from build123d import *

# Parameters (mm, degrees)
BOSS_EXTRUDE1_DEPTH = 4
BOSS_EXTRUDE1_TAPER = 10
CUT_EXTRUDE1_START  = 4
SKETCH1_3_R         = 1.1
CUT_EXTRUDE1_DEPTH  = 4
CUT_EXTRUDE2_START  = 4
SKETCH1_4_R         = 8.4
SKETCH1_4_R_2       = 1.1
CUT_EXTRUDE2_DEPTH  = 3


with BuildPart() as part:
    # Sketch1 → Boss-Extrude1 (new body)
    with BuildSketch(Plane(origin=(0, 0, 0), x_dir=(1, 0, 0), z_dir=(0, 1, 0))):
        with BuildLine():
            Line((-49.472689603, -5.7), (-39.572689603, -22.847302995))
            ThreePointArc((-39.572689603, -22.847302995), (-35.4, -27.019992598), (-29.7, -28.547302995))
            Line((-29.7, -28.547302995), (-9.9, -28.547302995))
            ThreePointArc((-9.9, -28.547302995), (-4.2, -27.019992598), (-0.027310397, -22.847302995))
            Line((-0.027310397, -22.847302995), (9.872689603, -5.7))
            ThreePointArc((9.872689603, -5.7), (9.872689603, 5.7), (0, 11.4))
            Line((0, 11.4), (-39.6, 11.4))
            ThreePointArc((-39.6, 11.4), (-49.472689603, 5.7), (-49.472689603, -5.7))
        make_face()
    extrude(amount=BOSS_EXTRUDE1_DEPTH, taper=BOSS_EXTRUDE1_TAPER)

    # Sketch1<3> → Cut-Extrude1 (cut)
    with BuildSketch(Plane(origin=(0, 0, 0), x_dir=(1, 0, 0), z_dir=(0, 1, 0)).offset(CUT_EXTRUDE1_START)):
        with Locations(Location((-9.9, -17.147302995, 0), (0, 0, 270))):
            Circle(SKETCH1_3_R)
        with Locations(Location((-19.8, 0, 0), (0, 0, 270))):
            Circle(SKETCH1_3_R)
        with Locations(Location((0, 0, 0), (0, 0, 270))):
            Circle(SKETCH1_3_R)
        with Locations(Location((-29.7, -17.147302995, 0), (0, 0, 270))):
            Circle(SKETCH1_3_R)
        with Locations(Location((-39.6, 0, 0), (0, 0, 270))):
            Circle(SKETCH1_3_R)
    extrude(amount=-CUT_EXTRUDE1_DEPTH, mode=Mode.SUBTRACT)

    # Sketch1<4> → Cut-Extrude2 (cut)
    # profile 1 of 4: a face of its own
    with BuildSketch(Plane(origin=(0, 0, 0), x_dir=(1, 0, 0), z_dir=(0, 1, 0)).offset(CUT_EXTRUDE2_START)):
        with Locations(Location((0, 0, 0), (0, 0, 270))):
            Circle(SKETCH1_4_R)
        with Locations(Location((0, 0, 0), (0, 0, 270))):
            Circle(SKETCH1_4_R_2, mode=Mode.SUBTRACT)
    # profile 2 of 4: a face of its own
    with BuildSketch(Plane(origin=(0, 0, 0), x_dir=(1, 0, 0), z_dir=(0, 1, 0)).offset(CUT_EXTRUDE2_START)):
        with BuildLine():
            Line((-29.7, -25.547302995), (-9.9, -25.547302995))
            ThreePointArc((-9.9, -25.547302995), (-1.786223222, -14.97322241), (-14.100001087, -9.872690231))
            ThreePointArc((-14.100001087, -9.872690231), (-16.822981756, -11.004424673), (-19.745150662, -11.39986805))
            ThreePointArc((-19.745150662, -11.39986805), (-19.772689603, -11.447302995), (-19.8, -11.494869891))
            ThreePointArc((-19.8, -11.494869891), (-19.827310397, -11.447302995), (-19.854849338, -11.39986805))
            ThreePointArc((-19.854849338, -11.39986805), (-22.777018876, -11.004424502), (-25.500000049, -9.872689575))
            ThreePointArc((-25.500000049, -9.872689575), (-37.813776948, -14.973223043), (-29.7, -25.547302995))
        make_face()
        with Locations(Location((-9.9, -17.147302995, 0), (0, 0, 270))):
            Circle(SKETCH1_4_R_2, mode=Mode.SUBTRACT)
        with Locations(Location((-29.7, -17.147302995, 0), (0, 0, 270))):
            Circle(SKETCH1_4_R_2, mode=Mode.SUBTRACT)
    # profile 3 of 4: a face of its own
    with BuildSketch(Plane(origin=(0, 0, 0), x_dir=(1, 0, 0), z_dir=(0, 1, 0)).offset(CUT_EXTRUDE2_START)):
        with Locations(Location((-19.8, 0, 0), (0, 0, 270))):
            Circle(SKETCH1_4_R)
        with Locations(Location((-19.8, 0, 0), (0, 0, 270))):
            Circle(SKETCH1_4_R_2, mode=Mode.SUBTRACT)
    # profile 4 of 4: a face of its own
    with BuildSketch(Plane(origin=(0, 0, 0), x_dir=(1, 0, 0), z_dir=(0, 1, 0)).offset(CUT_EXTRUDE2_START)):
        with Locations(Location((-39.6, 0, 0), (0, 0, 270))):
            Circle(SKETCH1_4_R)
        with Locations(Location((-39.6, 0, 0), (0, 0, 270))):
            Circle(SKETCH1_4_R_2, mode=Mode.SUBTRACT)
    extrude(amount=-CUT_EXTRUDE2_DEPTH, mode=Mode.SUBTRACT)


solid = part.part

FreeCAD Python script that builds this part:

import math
import FreeCAD as App
import Part
import Sketcher

V = App.Vector
Q = App.Units.Quantity

doc = App.newDocument("Part")
params = doc.addObject("Spreadsheet::Sheet", "Params")
for row, (alias, value) in enumerate([
    ("sketch1_radius", "11.4 mm"),
    ("sketch1_width", "19.8 mm"),
    ("sketch1_width2", "39.6 mm"),
    ("pad1_length", "4 mm"),
    ("pad1_taper", "-10 deg"),
    ("sketch2_diameter", "2.2 mm"),
    ("pocket1_length", "4 mm"),
    ("sketch3_diameter", "16.8 mm"),
    ("sketch3_diameter2", "2.2 mm"),
    ("sketch3_radius", "11.4 mm"),
    ("sketch3_width", "19.8 mm"),
    ("pocket2_length", "3 mm"),
], start=1):
    params.set(f"A{row}", alias)
    params.set(f"B{row}", "=" + value)
    params.setAlias(f"B{row}", alias)

body = doc.addObject("PartDesign::Body", "Body")

sketch1 = body.newObject("Sketcher::SketchObject", "Sketch")
sketch1.AttachmentSupport = (doc.getObject("XZ_Plane"), [""])
sketch1.MapMode = "FlatFace"
sketch1.addGeometry([
    Part.LineSegment(V(-49, 6, 0), V(-40, 23, 0)),
    Part.ArcOfCircle(Part.Circle(V(-30, 17, 0), V(0, 0, 1), 11), math.radians(90), math.radians(150)),
    Part.LineSegment(V(-30, 29, 0), V(-10, 29, 0)),
    Part.ArcOfCircle(Part.Circle(V(-10, 17, 0), V(0, 0, 1), 11), math.radians(30), math.radians(90)),
    Part.LineSegment(V(0, 23, 0), V(10, 6, 0)),
    Part.ArcOfCircle(Part.Circle(V(0, 0, 0), V(0, 0, 1), 11), math.radians(-90), math.radians(30)),
    Part.LineSegment(V(0, -11, 0), V(-40, -11, 0)),
    Part.ArcOfCircle(Part.Circle(V(-40, 0, 0), V(0, 0, 1), 11), math.radians(150), math.radians(270)),
], False)
sketch1.addConstraint([
    Sketcher.Constraint("Tangent", 0, 2, 1, 2),
    Sketcher.Constraint("Tangent", 1, 1, 2, 1),
    Sketcher.Constraint("Tangent", 2, 2, 3, 2),
    Sketcher.Constraint("Tangent", 3, 1, 4, 1),
    Sketcher.Constraint("Tangent", 4, 2, 5, 2),
    Sketcher.Constraint("Tangent", 5, 1, 6, 1),
    Sketcher.Constraint("Tangent", 6, 2, 7, 2),
    Sketcher.Constraint("Tangent", 7, 1, 0, 1),
    Sketcher.Constraint("Horizontal", 2),
    Sketcher.Constraint("Horizontal", 6),
    Sketcher.Constraint("Coincident", 5, 3, -1, 1),
    Sketcher.Constraint("Equal", 1, 3),
    Sketcher.Constraint("Equal", 3, 5),
    Sketcher.Constraint("Equal", 5, 7),
    Sketcher.Constraint("Horizontal", 0, 2, 3, 1),
    Sketcher.Constraint("Radius", 1, 11.4),
    Sketcher.Constraint("Angle", 0, Q("60 deg")),
    Sketcher.Constraint("DistanceX", 2, 1, 2, 2, 19.8),
    Sketcher.Constraint("DistanceX", 6, 2, 6, 1, 39.6),
])
sketch1.setExpression("Constraints[15]", "Params.sketch1_radius")
sketch1.setExpression("Constraints[17]", "Params.sketch1_width")
sketch1.setExpression("Constraints[18]", "Params.sketch1_width2")
pad1 = body.newObject("PartDesign::Pad", "Pad")
pad1.Profile = sketch1
pad1.setExpression("Length", "Params.pad1_length")
pad1.Reversed = True
pad1.setExpression("TaperAngle", "Params.pad1_taper")

sketch2 = body.newObject("Sketcher::SketchObject", "Sketch001")
sketch2.AttachmentSupport = (doc.getObject("XZ_Plane"), [""])
sketch2.MapMode = "FlatFace"
sketch2.AttachmentOffset = App.Placement(V(0, 0, -4), App.Rotation())
sketch2.addGeometry([
    Part.Circle(V(-9.9, 17.1, 0), V(0, 0, 1), 1.1),
    Part.Circle(V(-19.8, 0, 0), V(0, 0, 1), 1.1),
    Part.Circle(V(0, 0, 0), V(0, 0, 1), 1.1),
    Part.Circle(V(-29.7, 17.1, 0), V(0, 0, 1), 1.1),
    Part.Circle(V(-39.6, 0, 0), V(0, 0, 1), 1.1),
], False)
sketch2.addConstraint([
    Sketcher.Constraint("Coincident", 2, 3, -1, 1),
    Sketcher.Constraint("Equal", 0, 1),
    Sketcher.Constraint("Equal", 1, 2),
    Sketcher.Constraint("Equal", 2, 3),
    Sketcher.Constraint("Equal", 3, 4),
    Sketcher.Constraint("PointOnObject", 1, 3, -1),
    Sketcher.Constraint("PointOnObject", 4, 3, -1),
    Sketcher.Constraint("Horizontal", 0, 3, 3, 3),
    Sketcher.Constraint("Diameter", 0, 2.2),
    Sketcher.Constraint("DistanceX", 0, 3, -1, 1, 9.9),
    Sketcher.Constraint("DistanceX", 1, 3, -1, 1, 19.8),
    Sketcher.Constraint("DistanceX", 3, 3, -1, 1, 29.7),
    Sketcher.Constraint("DistanceX", 4, 3, -1, 1, 39.6),
    Sketcher.Constraint("DistanceY", -1, 1, 0, 3, 17.147303),
])
sketch2.setExpression("Constraints[8]", "Params.sketch2_diameter")
pocket1 = body.newObject("PartDesign::Pocket", "Pocket")
pocket1.Profile = sketch2
pocket1.setExpression("Length", "Params.pocket1_length")
pocket1.Reversed = True

sketch3 = body.newObject("Sketcher::SketchObject", "Sketch002")
sketch3.AttachmentSupport = (doc.getObject("XZ_Plane"), [""])
sketch3.MapMode = "FlatFace"
sketch3.AttachmentOffset = App.Placement(V(0, 0, -4), App.Rotation())
sketch3.addGeometry([
    Part.Circle(V(0, 0, 0), V(0, 0, 1), 8.4),
    Part.Circle(V(0, 0, 0), V(0, 0, 1), 1.1),
    Part.LineSegment(V(-29.7, 25.55, 0), V(-9.9, 25.55, 0)),
    Part.ArcOfCircle(Part.Circle(V(-9.9, 17.15, 0), V(0, 0, 1), 8.4), math.radians(-120), math.radians(90)),
    Part.ArcOfCircle(Part.Circle(V(-19.8, 0, 0), V(0, 0, 1), 11.4), math.radians(60), math.radians(90)),
    Part.ArcOfCircle(Part.Circle(V(-9.9, 17.15, 0), V(0, 0, 1), 11.4), math.radians(-150.28), math.radians(-149.72)),
    Part.ArcOfCircle(Part.Circle(V(-29.7, 17.15, 0), V(0, 0, 1), 11.4), math.radians(-30.28), math.radians(-29.72)),
    Part.ArcOfCircle(Part.Circle(V(-19.8, 0, 0), V(0, 0, 1), 11.4), math.radians(90), math.radians(120)),
    Part.ArcOfCircle(Part.Circle(V(-29.7, 17.15, 0), V(0, 0, 1), 8.4), math.radians(90), math.radians(300)),
    Part.Circle(V(-29.7, 17.15, 0), V(0, 0, 1), 1.1),
    Part.Circle(V(-9.9, 17.15, 0), V(0, 0, 1), 1.1),
    Part.Circle(V(-19.8, 0, 0), V(0, 0, 1), 8.4),
    Part.Circle(V(-19.8, 0, 0), V(0, 0, 1), 1.1),
    Part.Circle(V(-39.6, 0, 0), V(0, 0, 1), 8.4),
    Part.Circle(V(-39.6, 0, 0), V(0, 0, 1), 1.1),
], False)
sketch3.addConstraint([
    Sketcher.Constraint("Tangent", 2, 2, 3, 2),
    Sketcher.Constraint("Tangent", 3, 1, 4, 1),
    Sketcher.Constraint("Coincident", 4, 2, 5, 2),
    Sketcher.Constraint("Coincident", 5, 1, 6, 2),
    Sketcher.Constraint("Coincident", 6, 1, 7, 1),
    Sketcher.Constraint("Tangent", 7, 2, 8, 2),
    Sketcher.Constraint("Tangent", 8, 1, 2, 1),
    Sketcher.Constraint("Horizontal", 2),
    Sketcher.Constraint("Coincident", 0, 3, -1, 1),
    Sketcher.Constraint("Coincident", 1, 3, -1, 1),
    Sketcher.Constraint("Coincident", 7, 3, 4, 3),
    Sketcher.Constraint("Coincident", 9, 3, 8, 3),
    Sketcher.Constraint("Coincident", 10, 3, 3, 3),
    Sketcher.Constraint("Coincident", 11, 3, 4, 3),
    Sketcher.Constraint("Coincident", 12, 3, 4, 3),
    Sketcher.Constraint("Coincident", 14, 3, 13, 3),
    Sketcher.Constraint("Equal", 0, 3),
    Sketcher.Constraint("Equal", 5, 6),
    Sketcher.Constraint("Equal", 4, 7),
    Sketcher.Constraint("Equal", 3, 8),
    Sketcher.Constraint("Equal", 1, 9),
    Sketcher.Constraint("Equal", 9, 10),
    Sketcher.Constraint("Equal", 8, 11),
    Sketcher.Constraint("Equal", 10, 12),
    Sketcher.Constraint("Equal", 11, 13),
    Sketcher.Constraint("Equal", 12, 14),
    Sketcher.Constraint("PointOnObject", 4, 3, -1),
    Sketcher.Constraint("PointOnObject", 13, 3, -1),
    Sketcher.Constraint("Horizontal", 5, 3, 6, 3),
    Sketcher.Constraint("Vertical", 12, 3, 5, 1),
    Sketcher.Constraint("Diameter", 0, 16.8),
    Sketcher.Constraint("Diameter", 1, 2.2),
    Sketcher.Constraint("Radius", 4, 11.4),
    Sketcher.Constraint("DistanceX", 2, 1, 2, 2, 19.8),
    Sketcher.Constraint("DistanceX", 3, 3, -1, 1, 9.9),
    Sketcher.Constraint("DistanceX", 13, 3, -1, 1, 39.6),
    Sketcher.Constraint("Radius", 5, 11.40001),
    Sketcher.Constraint("DistanceY", 4, 2, 5, 1, 0.095002),
    Sketcher.Constraint("DistanceX", 5, 3, -1, 1, 9.899991),
])
sketch3.setExpression("Constraints[30]", "Params.sketch3_diameter")
sketch3.setExpression("Constraints[31]", "Params.sketch3_diameter2")
sketch3.setExpression("Constraints[32]", "Params.sketch3_radius")
sketch3.setExpression("Constraints[33]", "Params.sketch3_width")
pocket2 = body.newObject("PartDesign::Pocket", "Pocket001")
pocket2.Profile = sketch3
pocket2.setExpression("Length", "Params.pocket2_length")
pocket2.Reversed = True

doc.recompute()
